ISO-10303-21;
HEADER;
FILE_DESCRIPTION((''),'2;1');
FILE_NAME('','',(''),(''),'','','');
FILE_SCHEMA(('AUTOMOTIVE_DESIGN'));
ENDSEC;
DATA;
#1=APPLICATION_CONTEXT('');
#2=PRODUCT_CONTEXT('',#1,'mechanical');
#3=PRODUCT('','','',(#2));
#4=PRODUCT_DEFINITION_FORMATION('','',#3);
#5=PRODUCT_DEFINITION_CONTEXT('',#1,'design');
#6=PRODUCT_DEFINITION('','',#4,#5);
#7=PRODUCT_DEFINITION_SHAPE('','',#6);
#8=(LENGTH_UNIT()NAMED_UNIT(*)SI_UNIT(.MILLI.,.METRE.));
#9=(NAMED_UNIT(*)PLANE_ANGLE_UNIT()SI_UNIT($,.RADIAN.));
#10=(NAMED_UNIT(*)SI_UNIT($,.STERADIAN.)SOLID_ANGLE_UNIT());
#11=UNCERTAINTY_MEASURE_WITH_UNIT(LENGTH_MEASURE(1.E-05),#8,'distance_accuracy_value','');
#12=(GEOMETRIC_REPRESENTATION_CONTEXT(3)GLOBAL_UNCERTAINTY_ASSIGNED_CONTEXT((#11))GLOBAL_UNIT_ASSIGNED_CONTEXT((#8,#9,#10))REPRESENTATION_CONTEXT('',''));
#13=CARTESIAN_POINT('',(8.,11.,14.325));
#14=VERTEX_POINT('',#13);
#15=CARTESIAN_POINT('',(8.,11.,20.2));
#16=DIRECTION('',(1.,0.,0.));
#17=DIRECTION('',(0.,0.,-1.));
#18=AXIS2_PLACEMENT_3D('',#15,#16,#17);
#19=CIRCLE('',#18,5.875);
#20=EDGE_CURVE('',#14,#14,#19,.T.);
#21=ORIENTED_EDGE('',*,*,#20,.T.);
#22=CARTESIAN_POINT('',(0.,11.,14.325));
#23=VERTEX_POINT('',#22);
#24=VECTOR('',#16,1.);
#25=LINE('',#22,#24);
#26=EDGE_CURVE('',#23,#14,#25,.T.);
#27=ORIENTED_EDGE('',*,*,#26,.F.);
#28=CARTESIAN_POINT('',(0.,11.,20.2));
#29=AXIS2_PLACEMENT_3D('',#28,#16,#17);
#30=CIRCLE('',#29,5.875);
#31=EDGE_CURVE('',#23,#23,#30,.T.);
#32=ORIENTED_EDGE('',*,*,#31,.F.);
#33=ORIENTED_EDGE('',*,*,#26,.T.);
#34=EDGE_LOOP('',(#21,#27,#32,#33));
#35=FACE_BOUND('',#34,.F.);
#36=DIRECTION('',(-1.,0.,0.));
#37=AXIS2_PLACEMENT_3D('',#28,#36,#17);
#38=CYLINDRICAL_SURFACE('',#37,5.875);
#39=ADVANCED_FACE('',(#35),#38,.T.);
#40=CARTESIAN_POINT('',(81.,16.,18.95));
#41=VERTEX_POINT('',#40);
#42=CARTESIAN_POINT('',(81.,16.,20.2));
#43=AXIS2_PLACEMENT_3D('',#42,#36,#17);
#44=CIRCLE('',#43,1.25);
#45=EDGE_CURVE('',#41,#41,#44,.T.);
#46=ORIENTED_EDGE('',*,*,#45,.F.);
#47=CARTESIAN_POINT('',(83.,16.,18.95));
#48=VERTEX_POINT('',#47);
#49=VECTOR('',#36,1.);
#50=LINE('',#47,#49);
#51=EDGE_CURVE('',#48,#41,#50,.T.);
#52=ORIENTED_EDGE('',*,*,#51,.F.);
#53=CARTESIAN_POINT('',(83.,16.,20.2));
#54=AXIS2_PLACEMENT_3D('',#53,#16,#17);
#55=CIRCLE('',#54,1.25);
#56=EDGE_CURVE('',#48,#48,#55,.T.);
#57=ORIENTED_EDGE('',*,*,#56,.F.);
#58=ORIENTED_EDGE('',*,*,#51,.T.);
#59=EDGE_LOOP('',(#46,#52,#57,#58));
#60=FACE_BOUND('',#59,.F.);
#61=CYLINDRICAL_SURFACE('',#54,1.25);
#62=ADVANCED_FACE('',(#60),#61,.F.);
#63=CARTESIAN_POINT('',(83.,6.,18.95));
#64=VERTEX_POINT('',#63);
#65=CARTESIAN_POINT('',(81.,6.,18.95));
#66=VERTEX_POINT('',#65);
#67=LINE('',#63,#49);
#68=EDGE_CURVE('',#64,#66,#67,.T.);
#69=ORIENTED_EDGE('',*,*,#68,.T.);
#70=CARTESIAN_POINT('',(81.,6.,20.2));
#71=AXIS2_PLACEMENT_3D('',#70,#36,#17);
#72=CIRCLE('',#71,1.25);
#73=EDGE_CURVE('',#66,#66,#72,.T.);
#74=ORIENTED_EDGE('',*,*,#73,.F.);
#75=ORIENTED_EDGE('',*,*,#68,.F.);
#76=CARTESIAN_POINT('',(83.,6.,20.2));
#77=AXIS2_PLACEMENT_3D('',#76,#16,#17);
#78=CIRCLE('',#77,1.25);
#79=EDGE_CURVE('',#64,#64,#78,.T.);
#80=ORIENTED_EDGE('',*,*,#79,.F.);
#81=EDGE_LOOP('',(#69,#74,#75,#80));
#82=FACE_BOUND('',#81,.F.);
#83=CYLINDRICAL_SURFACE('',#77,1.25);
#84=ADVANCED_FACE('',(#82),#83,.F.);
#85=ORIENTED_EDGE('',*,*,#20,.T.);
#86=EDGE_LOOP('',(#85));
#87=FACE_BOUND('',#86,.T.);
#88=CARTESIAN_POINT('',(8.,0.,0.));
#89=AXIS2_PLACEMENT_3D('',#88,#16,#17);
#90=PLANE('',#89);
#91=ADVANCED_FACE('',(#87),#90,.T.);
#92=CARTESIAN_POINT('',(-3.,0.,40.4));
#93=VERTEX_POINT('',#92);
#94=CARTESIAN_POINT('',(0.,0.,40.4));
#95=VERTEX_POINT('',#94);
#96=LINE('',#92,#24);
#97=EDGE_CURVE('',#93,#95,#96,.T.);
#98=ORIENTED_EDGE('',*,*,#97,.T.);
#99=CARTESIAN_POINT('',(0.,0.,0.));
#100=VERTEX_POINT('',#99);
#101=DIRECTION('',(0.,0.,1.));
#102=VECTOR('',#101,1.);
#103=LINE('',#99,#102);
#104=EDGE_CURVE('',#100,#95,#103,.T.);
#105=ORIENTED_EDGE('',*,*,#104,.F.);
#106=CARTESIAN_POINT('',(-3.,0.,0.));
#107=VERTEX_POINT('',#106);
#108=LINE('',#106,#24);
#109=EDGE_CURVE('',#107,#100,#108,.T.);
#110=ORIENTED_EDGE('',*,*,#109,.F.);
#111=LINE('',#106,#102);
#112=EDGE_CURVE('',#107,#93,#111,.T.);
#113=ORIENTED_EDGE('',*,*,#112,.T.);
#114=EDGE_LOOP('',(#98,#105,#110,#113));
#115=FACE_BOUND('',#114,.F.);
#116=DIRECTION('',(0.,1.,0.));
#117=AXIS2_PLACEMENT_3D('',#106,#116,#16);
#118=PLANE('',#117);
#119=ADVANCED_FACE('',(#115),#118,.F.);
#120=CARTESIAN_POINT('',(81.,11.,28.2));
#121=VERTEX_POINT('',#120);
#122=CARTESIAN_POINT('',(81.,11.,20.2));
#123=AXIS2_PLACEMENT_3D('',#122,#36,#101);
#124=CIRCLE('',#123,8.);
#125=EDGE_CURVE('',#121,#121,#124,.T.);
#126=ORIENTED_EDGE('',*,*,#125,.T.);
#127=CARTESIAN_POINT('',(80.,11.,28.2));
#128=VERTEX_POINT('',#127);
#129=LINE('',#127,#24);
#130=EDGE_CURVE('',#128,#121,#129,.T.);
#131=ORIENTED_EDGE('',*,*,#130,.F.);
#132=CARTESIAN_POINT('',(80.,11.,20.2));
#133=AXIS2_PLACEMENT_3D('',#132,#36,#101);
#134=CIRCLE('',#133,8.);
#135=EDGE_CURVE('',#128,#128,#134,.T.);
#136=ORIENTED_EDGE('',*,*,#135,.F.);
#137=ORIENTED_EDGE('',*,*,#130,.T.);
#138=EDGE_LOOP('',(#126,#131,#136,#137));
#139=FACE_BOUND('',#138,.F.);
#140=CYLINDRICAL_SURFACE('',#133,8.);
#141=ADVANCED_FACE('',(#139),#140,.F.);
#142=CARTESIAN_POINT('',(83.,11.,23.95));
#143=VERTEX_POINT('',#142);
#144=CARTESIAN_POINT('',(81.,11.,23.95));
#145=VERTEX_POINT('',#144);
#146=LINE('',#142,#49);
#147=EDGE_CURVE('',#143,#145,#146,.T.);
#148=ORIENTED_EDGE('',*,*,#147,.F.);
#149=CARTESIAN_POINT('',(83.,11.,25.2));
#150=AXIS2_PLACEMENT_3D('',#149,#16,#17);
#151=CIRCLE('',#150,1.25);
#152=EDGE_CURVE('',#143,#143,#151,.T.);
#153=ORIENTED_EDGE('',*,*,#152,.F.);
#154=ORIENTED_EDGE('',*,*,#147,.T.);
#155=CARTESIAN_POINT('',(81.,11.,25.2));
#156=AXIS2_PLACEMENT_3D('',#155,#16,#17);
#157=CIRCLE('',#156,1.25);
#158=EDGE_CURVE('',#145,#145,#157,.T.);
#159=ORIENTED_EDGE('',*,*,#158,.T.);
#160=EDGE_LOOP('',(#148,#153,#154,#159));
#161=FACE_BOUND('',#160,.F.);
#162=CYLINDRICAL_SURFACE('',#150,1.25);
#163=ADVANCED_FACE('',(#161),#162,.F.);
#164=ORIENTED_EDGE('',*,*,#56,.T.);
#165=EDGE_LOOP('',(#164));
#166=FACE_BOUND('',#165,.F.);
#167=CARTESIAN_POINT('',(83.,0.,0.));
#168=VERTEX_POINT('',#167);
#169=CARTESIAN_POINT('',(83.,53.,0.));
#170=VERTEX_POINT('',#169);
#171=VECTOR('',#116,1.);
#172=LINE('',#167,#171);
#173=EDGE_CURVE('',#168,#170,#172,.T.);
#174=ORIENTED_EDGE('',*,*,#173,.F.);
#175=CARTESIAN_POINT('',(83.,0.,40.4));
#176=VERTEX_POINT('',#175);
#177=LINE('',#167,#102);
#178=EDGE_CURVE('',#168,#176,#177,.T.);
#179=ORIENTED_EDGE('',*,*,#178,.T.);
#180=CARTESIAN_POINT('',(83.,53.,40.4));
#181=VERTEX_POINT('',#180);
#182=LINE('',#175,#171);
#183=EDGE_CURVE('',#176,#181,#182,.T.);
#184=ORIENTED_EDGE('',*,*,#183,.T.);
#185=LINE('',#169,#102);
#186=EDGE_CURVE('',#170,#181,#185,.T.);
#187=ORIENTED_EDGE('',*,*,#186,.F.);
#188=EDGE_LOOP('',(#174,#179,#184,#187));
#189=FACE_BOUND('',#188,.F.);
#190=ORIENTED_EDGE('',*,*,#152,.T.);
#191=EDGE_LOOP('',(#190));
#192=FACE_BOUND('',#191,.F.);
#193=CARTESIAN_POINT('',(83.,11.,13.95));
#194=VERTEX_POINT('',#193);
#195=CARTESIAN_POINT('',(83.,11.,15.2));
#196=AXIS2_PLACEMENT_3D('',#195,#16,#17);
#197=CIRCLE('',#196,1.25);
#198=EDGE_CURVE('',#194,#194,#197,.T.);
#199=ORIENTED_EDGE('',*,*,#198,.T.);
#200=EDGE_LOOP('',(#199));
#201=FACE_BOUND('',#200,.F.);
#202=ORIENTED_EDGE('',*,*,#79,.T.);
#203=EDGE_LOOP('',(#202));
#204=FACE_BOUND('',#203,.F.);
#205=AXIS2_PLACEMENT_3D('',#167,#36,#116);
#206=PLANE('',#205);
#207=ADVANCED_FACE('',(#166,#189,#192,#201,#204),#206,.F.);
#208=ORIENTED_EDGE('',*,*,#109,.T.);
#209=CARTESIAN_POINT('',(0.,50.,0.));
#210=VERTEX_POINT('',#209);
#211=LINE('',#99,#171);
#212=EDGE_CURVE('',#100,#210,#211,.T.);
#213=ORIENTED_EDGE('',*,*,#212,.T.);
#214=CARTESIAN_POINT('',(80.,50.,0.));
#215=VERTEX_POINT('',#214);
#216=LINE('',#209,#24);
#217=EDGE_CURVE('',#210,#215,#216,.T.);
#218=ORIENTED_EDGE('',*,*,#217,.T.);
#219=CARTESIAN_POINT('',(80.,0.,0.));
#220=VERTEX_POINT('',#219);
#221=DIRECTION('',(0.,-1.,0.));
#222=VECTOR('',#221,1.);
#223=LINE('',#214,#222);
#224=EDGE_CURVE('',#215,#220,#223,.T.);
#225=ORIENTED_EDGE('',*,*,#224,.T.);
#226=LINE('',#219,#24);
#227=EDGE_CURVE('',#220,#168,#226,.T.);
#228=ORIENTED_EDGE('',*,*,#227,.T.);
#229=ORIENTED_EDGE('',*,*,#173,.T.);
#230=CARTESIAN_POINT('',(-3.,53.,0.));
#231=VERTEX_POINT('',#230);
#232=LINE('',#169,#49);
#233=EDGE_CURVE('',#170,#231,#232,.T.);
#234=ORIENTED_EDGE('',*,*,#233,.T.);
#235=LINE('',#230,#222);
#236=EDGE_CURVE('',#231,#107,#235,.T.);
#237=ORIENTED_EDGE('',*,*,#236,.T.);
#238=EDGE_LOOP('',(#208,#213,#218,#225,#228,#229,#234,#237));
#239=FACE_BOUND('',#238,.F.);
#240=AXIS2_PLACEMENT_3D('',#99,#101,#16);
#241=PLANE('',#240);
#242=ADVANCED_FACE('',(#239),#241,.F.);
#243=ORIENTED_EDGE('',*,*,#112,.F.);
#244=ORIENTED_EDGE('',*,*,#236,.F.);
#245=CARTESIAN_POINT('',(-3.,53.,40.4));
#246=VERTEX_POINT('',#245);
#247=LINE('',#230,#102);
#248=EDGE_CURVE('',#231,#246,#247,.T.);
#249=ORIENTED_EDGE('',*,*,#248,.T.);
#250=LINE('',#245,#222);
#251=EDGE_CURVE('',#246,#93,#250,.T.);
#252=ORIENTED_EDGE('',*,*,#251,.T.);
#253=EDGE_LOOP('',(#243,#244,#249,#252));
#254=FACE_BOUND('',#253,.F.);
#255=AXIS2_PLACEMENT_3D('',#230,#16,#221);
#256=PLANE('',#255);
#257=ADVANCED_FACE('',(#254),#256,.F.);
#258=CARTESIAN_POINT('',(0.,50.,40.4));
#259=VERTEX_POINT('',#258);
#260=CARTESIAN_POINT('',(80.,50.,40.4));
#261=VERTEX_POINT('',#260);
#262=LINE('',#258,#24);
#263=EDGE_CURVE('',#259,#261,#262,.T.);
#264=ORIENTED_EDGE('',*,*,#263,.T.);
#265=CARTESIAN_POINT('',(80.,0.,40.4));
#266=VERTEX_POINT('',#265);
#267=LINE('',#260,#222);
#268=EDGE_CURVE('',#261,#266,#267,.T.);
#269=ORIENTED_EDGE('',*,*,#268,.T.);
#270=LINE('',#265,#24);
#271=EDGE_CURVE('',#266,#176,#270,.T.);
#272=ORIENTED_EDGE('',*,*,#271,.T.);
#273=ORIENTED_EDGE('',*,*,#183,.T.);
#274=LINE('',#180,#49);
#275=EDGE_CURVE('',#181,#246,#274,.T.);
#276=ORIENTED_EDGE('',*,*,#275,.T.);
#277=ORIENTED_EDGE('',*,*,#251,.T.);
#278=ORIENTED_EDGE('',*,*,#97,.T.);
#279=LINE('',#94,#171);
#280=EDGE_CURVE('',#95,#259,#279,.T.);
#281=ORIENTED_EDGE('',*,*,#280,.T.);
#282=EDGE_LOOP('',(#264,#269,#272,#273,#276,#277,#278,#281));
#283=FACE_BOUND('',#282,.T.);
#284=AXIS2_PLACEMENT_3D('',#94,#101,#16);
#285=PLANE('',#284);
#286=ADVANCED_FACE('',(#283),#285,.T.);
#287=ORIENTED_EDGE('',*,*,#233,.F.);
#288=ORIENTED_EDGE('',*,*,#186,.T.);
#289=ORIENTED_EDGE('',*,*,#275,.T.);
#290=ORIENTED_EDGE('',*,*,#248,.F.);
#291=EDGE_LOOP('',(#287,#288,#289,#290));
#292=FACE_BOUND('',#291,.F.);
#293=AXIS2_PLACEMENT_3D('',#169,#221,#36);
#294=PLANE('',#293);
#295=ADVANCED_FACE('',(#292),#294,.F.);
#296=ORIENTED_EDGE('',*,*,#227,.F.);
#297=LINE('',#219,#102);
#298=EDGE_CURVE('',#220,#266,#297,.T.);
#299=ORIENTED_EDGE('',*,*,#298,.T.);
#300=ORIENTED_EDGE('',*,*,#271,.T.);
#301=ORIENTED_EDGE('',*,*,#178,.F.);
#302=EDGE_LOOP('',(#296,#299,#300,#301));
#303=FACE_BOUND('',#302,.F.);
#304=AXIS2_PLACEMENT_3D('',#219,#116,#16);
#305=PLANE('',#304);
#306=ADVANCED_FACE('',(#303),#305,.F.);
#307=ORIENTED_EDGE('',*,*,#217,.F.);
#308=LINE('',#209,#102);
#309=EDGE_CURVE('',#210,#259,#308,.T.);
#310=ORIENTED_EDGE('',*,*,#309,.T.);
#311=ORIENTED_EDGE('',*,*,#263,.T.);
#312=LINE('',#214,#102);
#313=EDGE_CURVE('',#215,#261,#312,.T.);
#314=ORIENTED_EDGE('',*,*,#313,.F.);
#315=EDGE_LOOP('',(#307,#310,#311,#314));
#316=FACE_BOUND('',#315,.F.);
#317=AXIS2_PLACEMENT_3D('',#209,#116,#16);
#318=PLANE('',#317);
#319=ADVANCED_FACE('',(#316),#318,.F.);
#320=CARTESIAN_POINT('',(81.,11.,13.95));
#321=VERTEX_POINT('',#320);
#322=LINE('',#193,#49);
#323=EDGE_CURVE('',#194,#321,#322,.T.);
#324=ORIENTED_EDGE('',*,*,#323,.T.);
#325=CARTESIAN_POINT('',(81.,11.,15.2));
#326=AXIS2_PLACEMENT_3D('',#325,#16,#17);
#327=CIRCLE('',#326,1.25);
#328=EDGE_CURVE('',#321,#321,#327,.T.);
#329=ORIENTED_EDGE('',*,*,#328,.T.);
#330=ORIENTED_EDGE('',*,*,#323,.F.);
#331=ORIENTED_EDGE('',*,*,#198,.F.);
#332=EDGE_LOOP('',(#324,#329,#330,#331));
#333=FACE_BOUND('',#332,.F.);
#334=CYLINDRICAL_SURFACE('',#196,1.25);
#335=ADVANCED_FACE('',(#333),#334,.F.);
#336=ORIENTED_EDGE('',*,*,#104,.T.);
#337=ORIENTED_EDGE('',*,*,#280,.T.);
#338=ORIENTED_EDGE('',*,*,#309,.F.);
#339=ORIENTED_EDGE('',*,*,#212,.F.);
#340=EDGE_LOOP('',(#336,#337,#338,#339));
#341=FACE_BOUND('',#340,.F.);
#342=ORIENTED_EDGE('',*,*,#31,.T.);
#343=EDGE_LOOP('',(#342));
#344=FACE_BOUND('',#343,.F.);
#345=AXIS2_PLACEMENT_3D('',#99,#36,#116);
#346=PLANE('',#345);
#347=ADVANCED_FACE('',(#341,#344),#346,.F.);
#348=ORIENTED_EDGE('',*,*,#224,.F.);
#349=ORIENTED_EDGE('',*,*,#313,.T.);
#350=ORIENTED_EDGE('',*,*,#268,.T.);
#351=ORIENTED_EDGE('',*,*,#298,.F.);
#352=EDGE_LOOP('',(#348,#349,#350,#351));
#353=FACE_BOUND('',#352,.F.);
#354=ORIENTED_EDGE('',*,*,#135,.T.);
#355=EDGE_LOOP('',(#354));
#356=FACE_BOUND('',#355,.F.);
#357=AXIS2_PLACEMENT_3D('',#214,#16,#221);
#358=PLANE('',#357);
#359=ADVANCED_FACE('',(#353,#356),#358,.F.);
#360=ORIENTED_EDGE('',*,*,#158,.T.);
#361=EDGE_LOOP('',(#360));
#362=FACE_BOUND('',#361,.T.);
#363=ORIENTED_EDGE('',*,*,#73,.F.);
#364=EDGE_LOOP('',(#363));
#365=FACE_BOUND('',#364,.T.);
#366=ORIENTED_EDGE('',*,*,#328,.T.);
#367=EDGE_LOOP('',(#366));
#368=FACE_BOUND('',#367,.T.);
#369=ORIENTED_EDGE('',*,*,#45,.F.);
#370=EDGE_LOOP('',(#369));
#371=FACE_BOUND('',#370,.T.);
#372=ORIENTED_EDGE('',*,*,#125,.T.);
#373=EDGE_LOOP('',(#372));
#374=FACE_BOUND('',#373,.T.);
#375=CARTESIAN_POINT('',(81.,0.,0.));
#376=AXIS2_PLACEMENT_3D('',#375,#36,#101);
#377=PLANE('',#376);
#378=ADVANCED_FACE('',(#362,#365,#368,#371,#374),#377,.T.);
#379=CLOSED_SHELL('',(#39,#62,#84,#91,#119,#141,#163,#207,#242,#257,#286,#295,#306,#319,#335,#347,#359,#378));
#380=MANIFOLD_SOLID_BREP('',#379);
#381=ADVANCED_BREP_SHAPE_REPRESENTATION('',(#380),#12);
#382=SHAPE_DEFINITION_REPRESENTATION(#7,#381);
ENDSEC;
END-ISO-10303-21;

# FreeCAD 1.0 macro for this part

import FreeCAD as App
import Part
import Sketcher
Q = App.Units.Quantity


def add_polygon(sketch, points):
    """Adds a closed chain of lines whose ends are joined by coincident constraints."""
    first, n = sketch.GeometryCount, len(points)
    for a, b in zip(points, points[1:] + points[:1]):
        sketch.addGeometry(Part.LineSegment(App.Vector(*a, 0), App.Vector(*b, 0)), False)
    for i in range(n):
        sketch.addConstraint(Sketcher.Constraint("Coincident", first + i, 2, first + (i + 1) % n, 1))

doc = App.newDocument("Part")
params = doc.addObject("Spreadsheet::Sheet", "Params")
for row, (alias, value) in enumerate([
    ("sketch1_width", "3 mm"),
    ("sketch1_width2", "80 mm"),
    ("sketch1_height", "50 mm"),
    ("sketch1_height2", "53 mm"),
    ("pad1_length", "40.4 mm"),
    ("sketch2_diameter", "2.5 mm"),
    ("pocket1_length", "3 mm"),
    ("sketch3_diameter", "11.75 mm"),
    ("pad2_length", "8 mm"),
    ("sketch4_diameter", "16 mm"),
    ("sketch4_diameter2", "2.5 mm"),
    ("pocket2_length", "1 mm"),
], start=1):
    params.set(f"A{row}", alias)
    params.set(f"B{row}", "=" + value)
    params.setAlias(f"B{row}", alias)

body = doc.addObject("PartDesign::Body", "Body")

# Sketch on XY plane
sketch1 = doc.addObject("Sketcher::SketchObject", "Sketch")
body.addObject(sketch1)
sketch1.AttachmentSupport = (doc.XY_Plane, [""])
sketch1.MapMode = "FlatFace"
add_polygon(sketch1, [(-3, 0), (0, 0), (0, 50), (80, 50), (80, 0), (83, 0), (83, 53), (-3, 53)])  # lines 0-7
sketch1.addConstraint([
    Sketcher.Constraint("Horizontal", 0),
    Sketcher.Constraint("Vertical", 1),
    Sketcher.Constraint("Horizontal", 2),
    Sketcher.Constraint("Vertical", 3),
    Sketcher.Constraint("Horizontal", 4),
    Sketcher.Constraint("Vertical", 5),
    Sketcher.Constraint("Horizontal", 6),
    Sketcher.Constraint("Vertical", 7),
    Sketcher.Constraint("Coincident", 0, 2, -1, 1),
    Sketcher.Constraint("PointOnObject", 3, 2, -1),
    Sketcher.Constraint("Equal", 0, 4),
    Sketcher.Constraint("DistanceX", 0, 1, 0, 2, Q("3 mm")),
    Sketcher.Constraint("DistanceX", 2, 1, 2, 2, Q("80 mm")),
    Sketcher.Constraint("DistanceY", 1, 1, 1, 2, Q("50 mm")),
    Sketcher.Constraint("DistanceY", 5, 1, 5, 2, Q("53 mm")),
])
sketch1.setExpression("Constraints[19]", "Params.sketch1_width")
sketch1.setExpression("Constraints[20]", "Params.sketch1_width2")
sketch1.setExpression("Constraints[21]", "Params.sketch1_height")
sketch1.setExpression("Constraints[22]", "Params.sketch1_height2")
pad1 = doc.addObject("PartDesign::Pad", "Pad")
body.addObject(pad1)
pad1.Profile = sketch1
pad1.setExpression("Length", "Params.pad1_length")

# Sketch on YZ plane
sketch2 = doc.addObject("Sketcher::SketchObject", "Sketch001")
body.addObject(sketch2)
sketch2.AttachmentSupport = (doc.YZ_Plane, [""])
sketch2.MapMode = "FlatFace"
sketch2.AttachmentOffset = App.Placement(App.Vector(0, 0, 83), App.Rotation())
sketch2.addGeometry([
    Part.Circle(App.Vector(16, 20.2, 0), App.Vector(0, 0, 1), 1.25),
    Part.Circle(App.Vector(11, 25.2, 0), App.Vector(0, 0, 1), 1.25),
    Part.Circle(App.Vector(6, 20.2, 0), App.Vector(0, 0, 1), 1.25),
    Part.Circle(App.Vector(11, 15.2, 0), App.Vector(0, 0, 1), 1.25),
], False)
sketch2.addConstraint([
    Sketcher.Constraint("Equal", 0, 1),
    Sketcher.Constraint("Equal", 1, 2),
    Sketcher.Constraint("Equal", 2, 3),
    Sketcher.Constraint("Horizontal", 0, 3, 2, 3),
    Sketcher.Constraint("Vertical", 1, 3, 3, 3),
    Sketcher.Constraint("Diameter", 0, Q("2.5 mm")),
    Sketcher.Constraint("DistanceX", -1, 1, 0, 3, Q("16 mm")),
    Sketcher.Constraint("DistanceX", -1, 1, 1, 3, Q("11 mm")),
    Sketcher.Constraint("DistanceX", -1, 1, 2, 3, Q("6 mm")),
    Sketcher.Constraint("DistanceY", 0, 3, 1, 3, Q("5 mm")),
    Sketcher.Constraint("DistanceY", 3, 3, 0, 3, Q("5 mm")),
    Sketcher.Constraint("DistanceY", -1, 1, 0, 3, Q("20.2 mm")),
])
sketch2.setExpression("Constraints[5]", "Params.sketch2_diameter")
pocket1 = doc.addObject("PartDesign::Pocket", "Pocket")
body.addObject(pocket1)
pocket1.Profile = sketch2
pocket1.setExpression("Length", "Params.pocket1_length")

# Sketch on YZ plane
sketch3 = doc.addObject("Sketcher::SketchObject", "Sketch002")
body.addObject(sketch3)
sketch3.AttachmentSupport = (doc.YZ_Plane, [""])
sketch3.MapMode = "FlatFace"
sketch3.addGeometry(Part.Circle(App.Vector(11, 20.2, 0), App.Vector(0, 0, 1), 5.875), False)
sketch3.addConstraint([
    Sketcher.Constraint("Diameter", 0, Q("11.75 mm")),
    Sketcher.Constraint("DistanceX", -1, 1, 0, 3, Q("11 mm")),
    Sketcher.Constraint("DistanceY", -1, 1, 0, 3, Q("20.2 mm")),
])
sketch3.setExpression("Constraints[0]", "Params.sketch3_diameter")
pad2 = doc.addObject("PartDesign::Pad", "Pad001")
body.addObject(pad2)
pad2.Profile = sketch3
pad2.setExpression("Length", "Params.pad2_length")

# Sketch on YZ plane
sketch4 = doc.addObject("Sketcher::SketchObject", "Sketch003")
body.addObject(sketch4)
sketch4.AttachmentSupport = (doc.YZ_Plane, [""])
sketch4.MapMode = "FlatFace"
sketch4.AttachmentOffset = App.Placement(App.Vector(0, 0, 80), App.Rotation())
sketch4.addGeometry([
    Part.Circle(App.Vector(11, 20.2, 0), App.Vector(0, 0, 1), 8),
    Part.Circle(App.Vector(6, 20.2, 0), App.Vector(0, 0, 1), 1.25),
    Part.Circle(App.Vector(16, 20.2, 0), App.Vector(0, 0, 1), 1.25),
], False)
sketch4.addConstraint([
    Sketcher.Constraint("Equal", 1, 2),
    Sketcher.Constraint("Horizontal", 0, 3, 1, 3),
    Sketcher.Constraint("Horizontal", 1, 3, 2, 3),
    Sketcher.Constraint("Diameter", 0, Q("16 mm")),
    Sketcher.Constraint("DistanceX", -1, 1, 2, 3, Q("16 mm")),
    Sketcher.Constraint("Diameter", 1, Q("2.5 mm")),
    Sketcher.Constraint("DistanceX", -1, 1, 0, 3, Q("11 mm")),
    Sketcher.Constraint("DistanceX", -1, 1, 1, 3, Q("6 mm")),
    Sketcher.Constraint("DistanceY", -1, 1, 0, 3, Q("20.2 mm")),
])
sketch4.setExpression("Constraints[3]", "Params.sketch4_diameter")
sketch4.setExpression("Constraints[5]", "Params.sketch4_diameter2")
pocket2 = doc.addObject("PartDesign::Pocket", "Pocket001")
body.addObject(pocket2)
pocket2.Profile = sketch4
pocket2.setExpression("Length", "Params.pocket2_length")
pocket2.Reversed = True

doc.recompute()
